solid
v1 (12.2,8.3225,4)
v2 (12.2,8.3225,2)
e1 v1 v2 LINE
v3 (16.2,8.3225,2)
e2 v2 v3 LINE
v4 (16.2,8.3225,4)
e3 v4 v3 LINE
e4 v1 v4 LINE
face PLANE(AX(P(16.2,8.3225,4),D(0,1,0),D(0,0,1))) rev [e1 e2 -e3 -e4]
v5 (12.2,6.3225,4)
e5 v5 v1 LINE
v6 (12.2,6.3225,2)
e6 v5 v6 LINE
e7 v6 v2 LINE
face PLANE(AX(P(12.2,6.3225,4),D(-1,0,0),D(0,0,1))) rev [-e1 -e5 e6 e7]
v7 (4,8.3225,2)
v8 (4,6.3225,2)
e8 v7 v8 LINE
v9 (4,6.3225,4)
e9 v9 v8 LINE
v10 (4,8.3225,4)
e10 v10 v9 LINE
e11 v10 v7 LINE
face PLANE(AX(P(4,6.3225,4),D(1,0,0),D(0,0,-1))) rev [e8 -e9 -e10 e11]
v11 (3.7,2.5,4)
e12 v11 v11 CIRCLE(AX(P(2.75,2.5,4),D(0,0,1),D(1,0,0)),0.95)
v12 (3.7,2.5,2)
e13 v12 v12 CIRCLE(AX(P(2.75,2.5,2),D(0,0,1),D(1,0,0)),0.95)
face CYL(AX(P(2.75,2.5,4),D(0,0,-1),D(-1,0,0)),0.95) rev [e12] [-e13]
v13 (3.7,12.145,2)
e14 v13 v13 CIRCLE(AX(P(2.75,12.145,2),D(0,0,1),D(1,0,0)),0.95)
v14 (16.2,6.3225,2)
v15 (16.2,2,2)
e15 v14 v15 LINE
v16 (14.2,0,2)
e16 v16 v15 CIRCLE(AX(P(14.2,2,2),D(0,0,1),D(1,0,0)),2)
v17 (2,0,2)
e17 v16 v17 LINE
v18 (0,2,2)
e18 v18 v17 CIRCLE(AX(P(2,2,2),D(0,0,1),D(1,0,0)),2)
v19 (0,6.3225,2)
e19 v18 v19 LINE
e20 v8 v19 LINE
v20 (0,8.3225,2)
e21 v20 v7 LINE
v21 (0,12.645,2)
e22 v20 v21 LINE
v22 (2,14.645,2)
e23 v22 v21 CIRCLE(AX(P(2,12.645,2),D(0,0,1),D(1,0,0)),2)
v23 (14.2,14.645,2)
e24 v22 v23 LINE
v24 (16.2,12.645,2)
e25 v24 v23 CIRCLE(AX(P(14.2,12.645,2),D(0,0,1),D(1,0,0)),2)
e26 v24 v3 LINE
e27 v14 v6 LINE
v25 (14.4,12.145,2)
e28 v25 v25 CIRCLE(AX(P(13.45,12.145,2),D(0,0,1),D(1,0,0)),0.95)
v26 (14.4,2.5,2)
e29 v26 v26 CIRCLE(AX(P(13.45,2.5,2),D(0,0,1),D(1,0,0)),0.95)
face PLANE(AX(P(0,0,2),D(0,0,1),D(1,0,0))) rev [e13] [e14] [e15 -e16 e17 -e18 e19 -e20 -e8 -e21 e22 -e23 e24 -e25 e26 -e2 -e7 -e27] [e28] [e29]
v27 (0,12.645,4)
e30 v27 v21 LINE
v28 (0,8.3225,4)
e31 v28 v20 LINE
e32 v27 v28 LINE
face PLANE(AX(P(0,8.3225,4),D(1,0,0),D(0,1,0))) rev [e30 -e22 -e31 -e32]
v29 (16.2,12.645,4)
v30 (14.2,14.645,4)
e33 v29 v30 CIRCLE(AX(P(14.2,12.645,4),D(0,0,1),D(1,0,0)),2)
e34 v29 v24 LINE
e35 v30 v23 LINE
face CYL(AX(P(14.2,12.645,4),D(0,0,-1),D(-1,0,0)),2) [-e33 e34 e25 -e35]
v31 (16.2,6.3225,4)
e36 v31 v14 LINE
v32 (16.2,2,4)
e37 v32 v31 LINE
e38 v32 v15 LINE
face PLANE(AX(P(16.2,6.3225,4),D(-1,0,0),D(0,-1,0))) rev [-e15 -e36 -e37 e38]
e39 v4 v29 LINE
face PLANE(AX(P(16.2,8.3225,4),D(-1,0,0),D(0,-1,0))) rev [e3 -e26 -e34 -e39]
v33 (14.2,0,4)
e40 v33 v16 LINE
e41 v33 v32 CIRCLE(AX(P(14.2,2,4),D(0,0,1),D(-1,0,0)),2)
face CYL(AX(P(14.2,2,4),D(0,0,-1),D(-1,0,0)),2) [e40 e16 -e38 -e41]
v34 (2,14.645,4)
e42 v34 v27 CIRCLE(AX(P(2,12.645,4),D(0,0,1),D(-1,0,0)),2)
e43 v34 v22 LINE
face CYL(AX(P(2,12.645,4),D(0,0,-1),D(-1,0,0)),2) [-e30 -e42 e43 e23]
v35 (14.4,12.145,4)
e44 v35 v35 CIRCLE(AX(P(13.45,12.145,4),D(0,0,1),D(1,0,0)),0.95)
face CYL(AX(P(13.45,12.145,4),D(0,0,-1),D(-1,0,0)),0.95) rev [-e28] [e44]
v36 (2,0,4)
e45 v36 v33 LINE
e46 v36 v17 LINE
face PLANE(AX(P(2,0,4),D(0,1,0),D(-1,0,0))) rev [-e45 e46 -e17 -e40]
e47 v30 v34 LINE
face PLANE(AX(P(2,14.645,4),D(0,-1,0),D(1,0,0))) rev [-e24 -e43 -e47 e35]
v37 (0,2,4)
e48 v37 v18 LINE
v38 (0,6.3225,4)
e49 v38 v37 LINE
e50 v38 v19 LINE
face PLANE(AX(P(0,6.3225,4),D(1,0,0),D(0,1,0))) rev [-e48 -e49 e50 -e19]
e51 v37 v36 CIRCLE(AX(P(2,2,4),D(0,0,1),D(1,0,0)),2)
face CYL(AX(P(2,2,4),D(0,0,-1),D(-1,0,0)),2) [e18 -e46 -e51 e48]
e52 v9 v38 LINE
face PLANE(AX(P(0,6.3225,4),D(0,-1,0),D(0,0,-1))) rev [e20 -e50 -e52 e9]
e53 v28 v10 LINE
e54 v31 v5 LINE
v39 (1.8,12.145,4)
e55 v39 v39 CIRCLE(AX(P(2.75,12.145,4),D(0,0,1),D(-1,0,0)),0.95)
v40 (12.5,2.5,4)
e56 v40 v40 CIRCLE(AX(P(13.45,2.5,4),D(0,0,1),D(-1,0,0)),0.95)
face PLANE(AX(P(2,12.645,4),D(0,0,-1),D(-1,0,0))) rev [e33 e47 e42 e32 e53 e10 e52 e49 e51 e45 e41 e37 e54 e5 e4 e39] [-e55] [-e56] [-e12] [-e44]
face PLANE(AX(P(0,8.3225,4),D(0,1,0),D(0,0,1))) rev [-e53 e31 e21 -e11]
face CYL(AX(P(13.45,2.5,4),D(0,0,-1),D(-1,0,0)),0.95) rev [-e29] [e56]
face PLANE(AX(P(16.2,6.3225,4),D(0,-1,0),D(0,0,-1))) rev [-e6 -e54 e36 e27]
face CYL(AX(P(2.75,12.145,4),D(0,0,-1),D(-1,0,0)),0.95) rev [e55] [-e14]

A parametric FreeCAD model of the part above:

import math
import FreeCAD as App
import Part
import Sketcher

V = App.Vector
Q = App.Units.Quantity


def add_polygon(sketch, points):
    """Adds a closed chain of lines whose ends are joined by coincident constraints."""
    first, n = sketch.GeometryCount, len(points)
    for a, b in zip(points, points[1:] + points[:1]):
        sketch.addGeometry(Part.LineSegment(App.Vector(*a, 0), App.Vector(*b, 0)), False)
    for i in range(n):
        sketch.addConstraint(Sketcher.Constraint("Coincident", first + i, 2, first + (i + 1) % n, 1))

doc = App.newDocument("Part")
body = doc.addObject("PartDesign::Body", "Body")

# Sketch on XY plane
sketch1 = doc.addObject("Sketcher::SketchObject", "Sketch")
body.addObject(sketch1)
sketch1.AttachmentSupport = (doc.XY_Plane, [""])
sketch1.MapMode = "FlatFace"
sketch1.addGeometry([
    Part.LineSegment(V(14.2, 14.6, 0), V(2, 14.6, 0)),  # 0
    Part.ArcOfCircle(Part.Circle(V(2, 12.6, 0), V(0, 0, 1), 2), math.radians(90), math.radians(180)),  # 1
    Part.LineSegment(V(0, 12.6, 0), V(0, 8.3, 0)),  # 2
    Part.LineSegment(V(0, 8.3, 0), V(4, 8.3, 0)),  # 3
    Part.LineSegment(V(4, 8.3, 0), V(4, 6.3, 0)),  # 4
    Part.LineSegment(V(4, 6.3, 0), V(0, 6.3, 0)),  # 5
    Part.LineSegment(V(0, 6.3, 0), V(0, 2, 0)),  # 6
    Part.ArcOfCircle(Part.Circle(V(2, 2, 0), V(0, 0, 1), 2), math.radians(-180), math.radians(-90)),  # 7
    Part.LineSegment(V(2, 0, 0), V(14.2, 0, 0)),  # 8
    Part.ArcOfCircle(Part.Circle(V(14.2, 2, 0), V(0, 0, 1), 2), math.radians(-90), math.radians(0)),  # 9
    Part.LineSegment(V(16.2, 2, 0), V(16.2, 6.3, 0)),  # 10
    Part.LineSegment(V(16.2, 6.3, 0), V(12.2, 6.3, 0)),  # 11
    Part.LineSegment(V(12.2, 6.3, 0), V(12.2, 8.3, 0)),  # 12
    Part.LineSegment(V(12.2, 8.3, 0), V(16.2, 8.3, 0)),  # 13
    Part.LineSegment(V(16.2, 8.3, 0), V(16.2, 12.6, 0)),  # 14
    Part.ArcOfCircle(Part.Circle(V(14.2, 12.6, 0), V(0, 0, 1), 2), math.radians(0), math.radians(90)),  # 15
    Part.Circle(V(13.4, 2.5, 0), V(0, 0, 1), 0.9),  # 16
    Part.Circle(V(2.8, 2.5, 0), V(0, 0, 1), 0.9),  # 17
    Part.Circle(V(13.4, 12.1, 0), V(0, 0, 1), 0.9),  # 18
    Part.Circle(V(2.8, 12.1, 0), V(0, 0, 1), 0.9),  # 19
], False)
sketch1.addConstraint([
    Sketcher.Constraint("Tangent", 0, 2, 1, 1),
    Sketcher.Constraint("Tangent", 1, 2, 2, 1),
    Sketcher.Constraint("Coincident", 2, 2, 3, 1),
    Sketcher.Constraint("Coincident", 3, 2, 4, 1),
    Sketcher.Constraint("Coincident", 4, 2, 5, 1),
    Sketcher.Constraint("Coincident", 5, 2, 6, 1),
    Sketcher.Constraint("Tangent", 6, 2, 7, 1),
    Sketcher.Constraint("Tangent", 7, 2, 8, 1),
    Sketcher.Constraint("Tangent", 8, 2, 9, 1),
    Sketcher.Constraint("Tangent", 9, 2, 10, 1),
    Sketcher.Constraint("Coincident", 10, 2, 11, 1),
    Sketcher.Constraint("Coincident", 11, 2, 12, 1),
    Sketcher.Constraint("Coincident", 12, 2, 13, 1),
    Sketcher.Constraint("Coincident", 13, 2, 14, 1),
    Sketcher.Constraint("Tangent", 14, 2, 15, 1),
    Sketcher.Constraint("Tangent", 15, 2, 0, 1),
    Sketcher.Constraint("Horizontal", 0),
    Sketcher.Constraint("Vertical", 2),
    Sketcher.Constraint("Horizontal", 3),
    Sketcher.Constraint("Vertical", 4),
    Sketcher.Constraint("Horizontal", 5),
    Sketcher.Constraint("Vertical", 6),
    Sketcher.Constraint("Horizontal", 8),
    Sketcher.Constraint("Vertical", 10),
    Sketcher.Constraint("Horizontal", 11),
    Sketcher.Constraint("Vertical", 12),
    Sketcher.Constraint("Horizontal", 13),
    Sketcher.Constraint("Vertical", 14),
    Sketcher.Constraint("Equal", 1, 7),
    Sketcher.Constraint("Equal", 7, 9),
    Sketcher.Constraint("Equal", 9, 15),
    Sketcher.Constraint("Equal", 16, 17),
    Sketcher.Constraint("Equal", 17, 18),
    Sketcher.Constraint("Equal", 18, 19),
    Sketcher.Constraint("PointOnObject", 1, 2, -2),
    Sketcher.Constraint("PointOnObject", 5, 2, -2),
    Sketcher.Constraint("PointOnObject", 7, 2, -1),
    Sketcher.Constraint("Horizontal", 16, 3, 17, 3),
    Sketcher.Constraint("Horizontal", 18, 3, 19, 3),
    Sketcher.Constraint("Horizontal", 5, 2, 10, 2),
    Sketcher.Constraint("Horizontal", 3, 2, 12, 2),
    Sketcher.Constraint("Vertical", 9, 3, 15, 3),
    Sketcher.Constraint("Vertical", 16, 3, 18, 3),
    Sketcher.Constraint("Vertical", 17, 3, 19, 3),
    Sketcher.Constraint("Equal", 5, 11),
    Sketcher.Constraint("Equal", 2, 6),
    Sketcher.Constraint("Radius", 1, Q("2 mm")),
    Sketcher.Constraint("Diameter", 16, Q("1.9 mm")),
    Sketcher.Constraint("DistanceX", 3, 1, 3, 2, Q("4 mm")),
    Sketcher.Constraint("DistanceY", 4, 2, 4, 1, Q("2 mm")),
    Sketcher.Constraint("DistanceX", 0, 2, 0, 1, Q("12.2 mm")),
    Sketcher.Constraint("DistanceY", -1, 1, 16, 3, Q("2.5 mm")),
    Sketcher.Constraint("DistanceX", 17, 3, 16, 3, Q("10.7 mm")),
    Sketcher.Constraint("DistanceY", 18, 3, 15, 3, Q("0.5 mm")),
    Sketcher.Constraint("DistanceX", -1, 1, 16, 3, Q("13.45 mm")),
    Sketcher.Constraint("DistanceY", 2, 2, 2, 1, Q("4.3225 mm")),
])
pad1 = doc.addObject("PartDesign::Pad", "Pad")
body.addObject(pad1)
pad1.Profile = sketch1
pad1.Length = 4

# Sketch on XY plane
sketch2 = doc.addObject("Sketcher::SketchObject", "Sketch001")
body.addObject(sketch2)
sketch2.AttachmentSupport = (doc.XY_Plane, [""])
sketch2.MapMode = "FlatFace"
add_polygon(sketch2, [(16, 15), (16, 0), (0, 0), (0, 15)])  # lines 0-3
sketch2.addConstraint([
    Sketcher.Constraint("Vertical", 0),
    Sketcher.Constraint("Horizontal", 1),
    Sketcher.Constraint("Vertical", 2),
    Sketcher.Constraint("Horizontal", 3),
    Sketcher.Constraint("Coincident", 1, 2, -1, 1),
    Sketcher.Constraint("DistanceX", 1, 2, 1, 1, Q("16.2 mm")),
    Sketcher.Constraint("DistanceY", 0, 2, 0, 1, Q("14.645 mm")),
])
pocket1 = doc.addObject("PartDesign::Pocket", "Pocket")
body.addObject(pocket1)
pocket1.Profile = sketch2
pocket1.Length = 2
pocket1.Reversed = True

doc.recompute()
